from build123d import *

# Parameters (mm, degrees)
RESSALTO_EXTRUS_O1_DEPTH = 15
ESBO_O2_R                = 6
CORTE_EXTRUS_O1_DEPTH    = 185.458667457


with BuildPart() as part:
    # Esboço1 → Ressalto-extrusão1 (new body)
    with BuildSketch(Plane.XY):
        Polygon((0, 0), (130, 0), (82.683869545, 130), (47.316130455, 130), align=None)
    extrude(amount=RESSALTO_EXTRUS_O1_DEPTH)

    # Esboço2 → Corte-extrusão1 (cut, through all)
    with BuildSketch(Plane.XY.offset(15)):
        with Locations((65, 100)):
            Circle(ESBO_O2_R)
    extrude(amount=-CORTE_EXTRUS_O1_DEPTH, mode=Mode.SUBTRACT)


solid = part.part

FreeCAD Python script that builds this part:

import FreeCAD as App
import Part
import Sketcher
Q = App.Units.Quantity

doc = App.newDocument("Part")
body = doc.addObject("PartDesign::Body", "Body")

# Sketch on XY plane
sketch1 = body.newObject("Sketcher::SketchObject", "Sketch")
sketch1.AttachmentSupport = (doc.getObject("XY_Plane"), [""])
sketch1.MapMode = "FlatFace"
sketch1.addGeometry(Part.LineSegment(App.Vector(0, 0, 0), App.Vector(130, 0, 0)), False)
sketch1.addGeometry(Part.LineSegment(App.Vector(130, 0, 0), App.Vector(83, 130, 0)), False)
sketch1.addGeometry(Part.LineSegment(App.Vector(83, 130, 0), App.Vector(47, 130, 0)), False)
sketch1.addGeometry(Part.LineSegment(App.Vector(47, 130, 0), App.Vector(0, 0, 0)), False)
sketch1.addConstraint(Sketcher.Constraint("Coincident", 0, 2, 1, 1))
sketch1.addConstraint(Sketcher.Constraint("Coincident", 1, 2, 2, 1))
sketch1.addConstraint(Sketcher.Constraint("Coincident", 2, 2, 3, 1))
sketch1.addConstraint(Sketcher.Constraint("Coincident", 3, 2, 0, 1))
sketch1.addConstraint(Sketcher.Constraint("Horizontal", 0))
sketch1.addConstraint(Sketcher.Constraint("Horizontal", 2))
sketch1.addConstraint(Sketcher.Constraint("Coincident", 3, 2, -1, 1))
sketch1.addConstraint(Sketcher.Constraint("Equal", 1, 3))
sketch1.addConstraint(Sketcher.Constraint("DistanceX", 0, 1, 0, 2, Q("130 mm")))
sketch1.addConstraint(Sketcher.Constraint("Angle", 1, Q("110 deg")))
sketch1.addConstraint(Sketcher.Constraint("DistanceY", -1, 1, 1, 2, Q("130 mm")))
pad1 = body.newObject("PartDesign::Pad", "Pad")
pad1.Profile = sketch1
pad1.Length = 15

# Sketch on XY plane
sketch2 = body.newObject("Sketcher::SketchObject", "Sketch001")
sketch2.AttachmentSupport = (doc.getObject("XY_Plane"), [""])
sketch2.MapMode = "FlatFace"
sketch2.AttachmentOffset = App.Placement(App.Vector(0, 0, 15), App.Rotation())
sketch2.addGeometry(Part.Circle(App.Vector(65, 100, 0), App.Vector(0, 0, 1), 6), False)
sketch2.addConstraint(Sketcher.Constraint("Diameter", 0, Q("12 mm")))
sketch2.addConstraint(Sketcher.Constraint("DistanceX", -1, 1, 0, 3, Q("65 mm")))
sketch2.addConstraint(Sketcher.Constraint("DistanceY", -1, 1, 0, 3, Q("100 mm")))
pocket1 = body.newObject("PartDesign::Pocket", "Pocket")
pocket1.Profile = sketch2
pocket1.Type = "ThroughAll"

doc.recompute()
